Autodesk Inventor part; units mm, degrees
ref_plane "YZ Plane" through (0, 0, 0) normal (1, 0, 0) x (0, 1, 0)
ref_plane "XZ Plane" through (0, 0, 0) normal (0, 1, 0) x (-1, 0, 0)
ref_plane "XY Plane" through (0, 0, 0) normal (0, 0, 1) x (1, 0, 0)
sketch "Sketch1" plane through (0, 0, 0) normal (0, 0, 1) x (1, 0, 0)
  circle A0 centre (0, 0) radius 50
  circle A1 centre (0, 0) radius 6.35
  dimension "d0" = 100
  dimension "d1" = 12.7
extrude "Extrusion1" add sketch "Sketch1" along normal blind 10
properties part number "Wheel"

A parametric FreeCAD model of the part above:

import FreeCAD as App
import Part
import Sketcher
from FreeCAD import Vector
Q = App.Units.Quantity

doc = App.newDocument("Part")
body = doc.addObject("PartDesign::Body", "Body")

# Sketch on XY plane
sketch1 = body.newObject("Sketcher::SketchObject", "Sketch")
sketch1.AttachmentSupport = (doc.getObject("XY_Plane"), [""])
sketch1.MapMode = "FlatFace"
sketch1.addGeometry(Part.Circle(Vector(0, 0, 0), Vector(0, 0, 1), 50), False)
sketch1.addGeometry(Part.Circle(Vector(0, 0, 0), Vector(0, 0, 1), 6), False)
sketch1.addConstraint(Sketcher.Constraint("Coincident", 0, 3, -1, 1))
sketch1.addConstraint(Sketcher.Constraint("Coincident", 1, 3, -1, 1))
sketch1.addConstraint(Sketcher.Constraint("Diameter", 1, Q("0.5 in")))
sketch1.addConstraint(Sketcher.Constraint("Diameter", 0, Q("3.937 in")))
pad1 = body.newObject("PartDesign::Pad", "Pad")
pad1.Profile = sketch1
pad1.Length = Q("0.3937008 in")

doc.recompute()
